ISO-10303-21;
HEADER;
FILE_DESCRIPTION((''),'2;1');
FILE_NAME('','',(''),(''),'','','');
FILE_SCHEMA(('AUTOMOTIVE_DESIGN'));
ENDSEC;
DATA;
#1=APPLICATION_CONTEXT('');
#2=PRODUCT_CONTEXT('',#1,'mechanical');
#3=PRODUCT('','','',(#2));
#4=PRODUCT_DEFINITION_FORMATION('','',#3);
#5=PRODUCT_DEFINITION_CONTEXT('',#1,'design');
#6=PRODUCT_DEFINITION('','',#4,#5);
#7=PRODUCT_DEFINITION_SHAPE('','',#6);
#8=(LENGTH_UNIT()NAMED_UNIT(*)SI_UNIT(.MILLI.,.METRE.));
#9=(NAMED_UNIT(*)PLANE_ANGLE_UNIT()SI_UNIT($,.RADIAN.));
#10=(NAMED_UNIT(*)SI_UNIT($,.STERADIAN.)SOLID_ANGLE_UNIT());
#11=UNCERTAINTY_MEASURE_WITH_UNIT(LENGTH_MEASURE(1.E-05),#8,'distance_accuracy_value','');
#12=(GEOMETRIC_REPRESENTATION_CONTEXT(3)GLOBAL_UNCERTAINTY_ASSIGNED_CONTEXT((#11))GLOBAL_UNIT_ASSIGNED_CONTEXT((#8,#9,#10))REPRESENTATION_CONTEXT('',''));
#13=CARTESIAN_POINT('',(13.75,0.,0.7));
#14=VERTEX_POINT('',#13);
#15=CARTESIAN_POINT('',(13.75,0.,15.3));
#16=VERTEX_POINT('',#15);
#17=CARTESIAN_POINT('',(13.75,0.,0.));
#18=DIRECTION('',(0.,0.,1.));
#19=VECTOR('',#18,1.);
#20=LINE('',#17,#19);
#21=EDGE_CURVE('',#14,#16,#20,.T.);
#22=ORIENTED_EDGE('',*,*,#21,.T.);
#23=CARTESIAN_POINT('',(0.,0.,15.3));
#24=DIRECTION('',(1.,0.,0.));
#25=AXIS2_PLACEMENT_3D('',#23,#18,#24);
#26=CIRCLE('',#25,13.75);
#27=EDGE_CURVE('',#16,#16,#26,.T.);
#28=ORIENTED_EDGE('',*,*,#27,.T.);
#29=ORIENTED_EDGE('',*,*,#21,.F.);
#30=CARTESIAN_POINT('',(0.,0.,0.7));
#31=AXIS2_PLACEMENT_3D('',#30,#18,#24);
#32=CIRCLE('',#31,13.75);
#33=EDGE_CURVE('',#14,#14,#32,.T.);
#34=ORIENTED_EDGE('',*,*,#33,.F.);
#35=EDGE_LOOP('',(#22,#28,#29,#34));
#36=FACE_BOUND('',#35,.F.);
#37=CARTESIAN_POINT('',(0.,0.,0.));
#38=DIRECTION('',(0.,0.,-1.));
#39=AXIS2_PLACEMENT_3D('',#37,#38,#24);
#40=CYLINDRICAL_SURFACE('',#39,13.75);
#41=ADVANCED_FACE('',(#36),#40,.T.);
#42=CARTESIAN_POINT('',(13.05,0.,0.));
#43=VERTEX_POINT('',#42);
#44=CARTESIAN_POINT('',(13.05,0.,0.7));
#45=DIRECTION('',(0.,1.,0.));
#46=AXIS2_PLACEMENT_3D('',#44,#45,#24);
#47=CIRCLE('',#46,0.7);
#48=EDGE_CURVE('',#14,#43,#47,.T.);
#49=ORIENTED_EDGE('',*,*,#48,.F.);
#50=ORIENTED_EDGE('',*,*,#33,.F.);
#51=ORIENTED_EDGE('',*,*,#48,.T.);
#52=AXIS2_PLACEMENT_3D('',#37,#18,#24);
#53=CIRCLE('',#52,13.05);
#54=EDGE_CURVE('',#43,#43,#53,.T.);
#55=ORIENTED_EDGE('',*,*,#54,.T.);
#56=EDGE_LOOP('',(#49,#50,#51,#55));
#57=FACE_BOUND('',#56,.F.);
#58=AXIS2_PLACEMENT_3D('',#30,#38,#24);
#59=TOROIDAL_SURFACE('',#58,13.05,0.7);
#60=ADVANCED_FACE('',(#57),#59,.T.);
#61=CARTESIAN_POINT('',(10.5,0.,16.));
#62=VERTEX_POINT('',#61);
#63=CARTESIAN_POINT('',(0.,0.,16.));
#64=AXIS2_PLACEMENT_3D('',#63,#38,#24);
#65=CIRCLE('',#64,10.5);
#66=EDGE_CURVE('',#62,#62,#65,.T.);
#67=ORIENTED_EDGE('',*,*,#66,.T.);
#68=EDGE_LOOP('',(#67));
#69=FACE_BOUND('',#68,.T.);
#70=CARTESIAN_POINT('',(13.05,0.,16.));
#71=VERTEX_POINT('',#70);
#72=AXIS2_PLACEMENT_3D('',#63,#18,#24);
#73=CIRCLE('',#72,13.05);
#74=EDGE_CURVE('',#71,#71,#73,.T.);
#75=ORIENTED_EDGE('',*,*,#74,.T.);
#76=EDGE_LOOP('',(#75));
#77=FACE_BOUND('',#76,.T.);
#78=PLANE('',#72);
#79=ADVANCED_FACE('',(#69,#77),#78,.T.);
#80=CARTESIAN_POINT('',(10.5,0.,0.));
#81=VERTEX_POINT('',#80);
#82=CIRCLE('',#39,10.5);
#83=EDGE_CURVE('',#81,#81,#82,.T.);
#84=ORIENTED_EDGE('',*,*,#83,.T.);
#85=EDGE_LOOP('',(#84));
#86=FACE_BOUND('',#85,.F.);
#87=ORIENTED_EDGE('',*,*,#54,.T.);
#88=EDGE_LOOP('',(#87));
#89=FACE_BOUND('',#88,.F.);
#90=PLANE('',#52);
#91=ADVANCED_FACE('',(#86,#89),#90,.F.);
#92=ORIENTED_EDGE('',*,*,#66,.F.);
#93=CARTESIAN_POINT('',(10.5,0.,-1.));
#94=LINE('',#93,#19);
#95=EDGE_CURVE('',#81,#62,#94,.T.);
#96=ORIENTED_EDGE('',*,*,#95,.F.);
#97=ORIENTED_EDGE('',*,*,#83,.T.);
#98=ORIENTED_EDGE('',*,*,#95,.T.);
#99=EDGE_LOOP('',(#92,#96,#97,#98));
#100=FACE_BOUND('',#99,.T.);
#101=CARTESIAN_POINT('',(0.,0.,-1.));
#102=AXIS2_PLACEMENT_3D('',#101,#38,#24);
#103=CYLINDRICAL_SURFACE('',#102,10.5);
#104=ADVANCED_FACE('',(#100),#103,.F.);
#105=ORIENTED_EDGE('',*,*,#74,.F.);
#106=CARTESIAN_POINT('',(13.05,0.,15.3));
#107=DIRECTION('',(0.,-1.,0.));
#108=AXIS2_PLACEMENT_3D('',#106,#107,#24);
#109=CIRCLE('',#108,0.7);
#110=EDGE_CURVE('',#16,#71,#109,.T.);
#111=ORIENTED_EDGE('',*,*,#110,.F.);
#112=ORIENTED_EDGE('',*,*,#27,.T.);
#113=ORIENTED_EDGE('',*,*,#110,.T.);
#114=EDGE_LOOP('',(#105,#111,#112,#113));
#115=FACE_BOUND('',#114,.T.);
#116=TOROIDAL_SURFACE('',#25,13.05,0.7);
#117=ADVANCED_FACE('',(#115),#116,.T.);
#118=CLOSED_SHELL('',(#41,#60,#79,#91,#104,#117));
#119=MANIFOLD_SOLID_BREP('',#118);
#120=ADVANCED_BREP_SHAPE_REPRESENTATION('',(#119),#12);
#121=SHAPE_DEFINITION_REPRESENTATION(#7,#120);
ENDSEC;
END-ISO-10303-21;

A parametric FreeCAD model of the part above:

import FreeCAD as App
import Part
import Sketcher

V = App.Vector
Q = App.Units.Quantity


def edges_at(feature, points):
    """Names of the edges that pass closest to the given points."""
    edges = feature.Shape.Edges
    near = lambda p: min(range(len(edges)), key=lambda i: edges[i].distToShape(Part.Vertex(*p))[0])
    return sorted({f"Edge{near(p) + 1}" for p in points})

doc = App.newDocument("Part")
body = doc.addObject("PartDesign::Body", "Body")

# Sketch on XY plane
sketch1 = body.newObject("Sketcher::SketchObject", "Sketch")
sketch1.AttachmentSupport = (doc.getObject("XY_Plane"), [""])
sketch1.MapMode = "FlatFace"
sketch1.AttachmentOffset = App.Placement(V(0, 0, -1), App.Rotation())
sketch1.addGeometry(Part.Circle(V(0, 0, 0), V(0, 0, 1), 10), False)
sketch1.addConstraint([
    Sketcher.Constraint("Coincident", 0, 3, -1, 1),
    Sketcher.Constraint("Diameter", 0, Q("21 mm")),
])
pad1 = body.newObject("PartDesign::Pad", "Pad")
pad1.Profile = sketch1
pad1.Length = 20
body2 = doc.addObject("PartDesign::Body", "Body001")

# Sketch on XY plane
sketch2 = body2.newObject("Sketcher::SketchObject", "Sketch001")
sketch2.AttachmentSupport = (doc.getObject("XY_Plane001"), [""])
sketch2.MapMode = "FlatFace"
sketch2.addGeometry(Part.Circle(V(0, 0, 0), V(0, 0, 1), 14), False)
sketch2.addConstraint([
    Sketcher.Constraint("Coincident", 0, 3, -1, 1),
    Sketcher.Constraint("Diameter", 0, Q("27.5 mm")),
])
pad2 = body2.newObject("PartDesign::Pad", "Pad001")
pad2.Profile = sketch2
pad2.Length = 16
doc.recompute()

boolean = body2.newObject("PartDesign::Boolean", "Boolean")
boolean.Type = "Cut"
boolean.addObjects([body])
doc.recompute()

fillet = body2.newObject("PartDesign::Fillet", "Fillet")
fillet.Base = (boolean, edges_at(boolean, [(-13.75, 0, 16), (-13.75, 0, 0)]))
fillet.Radius = 0.7

doc.recompute()
